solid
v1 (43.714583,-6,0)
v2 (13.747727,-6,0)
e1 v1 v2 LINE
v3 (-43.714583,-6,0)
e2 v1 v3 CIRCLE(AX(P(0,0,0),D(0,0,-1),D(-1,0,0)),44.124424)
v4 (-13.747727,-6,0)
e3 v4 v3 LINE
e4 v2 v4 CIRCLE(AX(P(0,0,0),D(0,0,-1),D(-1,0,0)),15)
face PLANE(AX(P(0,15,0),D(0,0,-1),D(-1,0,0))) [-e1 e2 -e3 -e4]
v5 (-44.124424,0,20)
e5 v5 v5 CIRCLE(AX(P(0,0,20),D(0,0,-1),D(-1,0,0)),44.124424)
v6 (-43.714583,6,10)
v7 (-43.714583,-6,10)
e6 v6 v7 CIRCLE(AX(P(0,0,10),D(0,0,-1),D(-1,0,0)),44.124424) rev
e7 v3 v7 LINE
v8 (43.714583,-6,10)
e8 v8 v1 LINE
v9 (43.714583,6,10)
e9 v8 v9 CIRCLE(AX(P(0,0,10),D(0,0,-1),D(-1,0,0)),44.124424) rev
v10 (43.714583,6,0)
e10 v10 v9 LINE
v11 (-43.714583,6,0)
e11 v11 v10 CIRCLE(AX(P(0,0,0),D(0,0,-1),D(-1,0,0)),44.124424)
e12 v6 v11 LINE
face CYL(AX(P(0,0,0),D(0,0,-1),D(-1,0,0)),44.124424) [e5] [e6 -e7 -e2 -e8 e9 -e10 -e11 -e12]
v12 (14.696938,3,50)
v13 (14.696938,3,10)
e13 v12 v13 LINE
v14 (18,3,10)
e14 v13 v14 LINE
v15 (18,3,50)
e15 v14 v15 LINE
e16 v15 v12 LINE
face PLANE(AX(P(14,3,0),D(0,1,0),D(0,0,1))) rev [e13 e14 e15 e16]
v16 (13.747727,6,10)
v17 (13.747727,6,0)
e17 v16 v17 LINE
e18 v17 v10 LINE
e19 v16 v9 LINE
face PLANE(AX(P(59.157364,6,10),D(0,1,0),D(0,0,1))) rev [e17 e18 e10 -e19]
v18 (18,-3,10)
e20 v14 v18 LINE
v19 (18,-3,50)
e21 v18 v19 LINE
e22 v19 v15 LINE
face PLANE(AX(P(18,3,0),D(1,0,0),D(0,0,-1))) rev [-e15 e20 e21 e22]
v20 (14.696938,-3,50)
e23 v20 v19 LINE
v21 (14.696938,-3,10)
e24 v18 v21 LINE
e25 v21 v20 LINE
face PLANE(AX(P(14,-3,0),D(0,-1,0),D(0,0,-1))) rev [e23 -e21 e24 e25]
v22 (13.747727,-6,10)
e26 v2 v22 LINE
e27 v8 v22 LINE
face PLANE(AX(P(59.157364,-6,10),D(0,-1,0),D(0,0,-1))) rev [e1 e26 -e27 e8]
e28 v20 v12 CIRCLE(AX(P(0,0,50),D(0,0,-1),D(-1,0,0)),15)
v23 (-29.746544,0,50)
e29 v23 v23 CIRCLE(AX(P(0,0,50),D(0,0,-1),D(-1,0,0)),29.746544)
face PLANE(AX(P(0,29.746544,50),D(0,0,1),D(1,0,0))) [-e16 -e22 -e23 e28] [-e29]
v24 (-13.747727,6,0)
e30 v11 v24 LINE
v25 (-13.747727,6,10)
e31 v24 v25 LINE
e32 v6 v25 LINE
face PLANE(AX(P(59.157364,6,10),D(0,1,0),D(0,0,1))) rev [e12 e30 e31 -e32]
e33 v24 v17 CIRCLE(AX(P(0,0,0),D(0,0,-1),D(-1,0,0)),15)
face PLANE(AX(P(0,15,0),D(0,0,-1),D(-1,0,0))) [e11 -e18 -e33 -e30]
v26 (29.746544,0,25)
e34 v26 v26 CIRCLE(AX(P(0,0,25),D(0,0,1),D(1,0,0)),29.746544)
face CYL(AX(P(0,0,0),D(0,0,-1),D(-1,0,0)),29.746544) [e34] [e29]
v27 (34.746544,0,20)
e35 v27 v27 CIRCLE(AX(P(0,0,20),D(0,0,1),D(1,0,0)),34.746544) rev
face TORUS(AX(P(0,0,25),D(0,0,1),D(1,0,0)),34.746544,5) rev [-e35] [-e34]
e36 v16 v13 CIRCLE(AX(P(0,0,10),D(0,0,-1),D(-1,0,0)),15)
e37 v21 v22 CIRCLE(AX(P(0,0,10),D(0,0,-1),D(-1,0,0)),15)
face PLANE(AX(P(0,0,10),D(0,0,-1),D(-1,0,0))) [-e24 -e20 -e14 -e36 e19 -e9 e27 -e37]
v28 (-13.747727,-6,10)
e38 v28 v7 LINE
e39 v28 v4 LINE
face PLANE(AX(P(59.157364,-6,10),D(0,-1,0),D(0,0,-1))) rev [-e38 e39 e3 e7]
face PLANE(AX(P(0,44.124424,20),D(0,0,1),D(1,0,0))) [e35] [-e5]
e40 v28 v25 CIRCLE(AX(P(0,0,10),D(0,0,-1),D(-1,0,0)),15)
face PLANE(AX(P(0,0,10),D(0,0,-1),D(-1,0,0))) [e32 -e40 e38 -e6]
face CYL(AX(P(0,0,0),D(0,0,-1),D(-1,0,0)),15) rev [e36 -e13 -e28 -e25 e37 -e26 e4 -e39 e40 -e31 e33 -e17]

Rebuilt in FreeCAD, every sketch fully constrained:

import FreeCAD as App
import Part
import Sketcher
from FreeCAD import Vector


def edges_at(feature, points):
    """Names of the edges that pass closest to the given points."""
    edges = feature.Shape.Edges
    near = lambda p: min(range(len(edges)), key=lambda i: edges[i].distToShape(Part.Vertex(*p))[0])
    return sorted({f"Edge{near(p) + 1}" for p in points})

doc = App.newDocument("Part")
body = doc.addObject("PartDesign::Body", "Body")

# Sketch on YZ plane
sketch1 = body.newObject("Sketcher::SketchObject", "Sketch")
sketch1.AttachmentSupport = (doc.getObject("YZ_Plane"), [""])
sketch1.MapMode = "FlatFace"
sketch1.addGeometry([
    Part.LineSegment(Vector(15, 0, 0), Vector(44.124424, 0, 0)),  # 0
    Part.LineSegment(Vector(44.124424, 0, 0), Vector(44.124424, 20, 0)),  # 1
    Part.LineSegment(Vector(44.124424, 20, 0), Vector(29.746544, 20, 0)),  # 2
    Part.LineSegment(Vector(29.746544, 20, 0), Vector(29.746544, 50, 0)),  # 3
    Part.LineSegment(Vector(29.746544, 50, 0), Vector(15, 50, 0)),  # 4
    Part.LineSegment(Vector(15, 50, 0), Vector(15, 0, 0)),  # 5
], False)
sketch1.addConstraint([
    Sketcher.Constraint("Coincident", 0, 2, 1, 1),
    Sketcher.Constraint("Coincident", 1, 2, 2, 1),
    Sketcher.Constraint("Coincident", 2, 2, 3, 1),
    Sketcher.Constraint("Coincident", 3, 2, 4, 1),
    Sketcher.Constraint("Coincident", 4, 2, 5, 1),
    Sketcher.Constraint("Coincident", 5, 2, 0, 1),
    Sketcher.Constraint("Horizontal", 0),
    Sketcher.Constraint("Vertical", 1),
    Sketcher.Constraint("Horizontal", 2),
    Sketcher.Constraint("Vertical", 3),
    Sketcher.Constraint("Horizontal", 4),
    Sketcher.Constraint("Vertical", 5),
    Sketcher.Constraint("PointOnObject", 0, 2, -1),
    Sketcher.Constraint("DistanceY", 1, 1, 1, 2, 20.0),
    Sketcher.Constraint("DistanceY", 3, 1, 3, 2, 30.0),
    Sketcher.Constraint("DistanceX", -1, 1, 4, 2, 15.0),
    Sketcher.Constraint("DistanceX", 2, 2, 2, 1, 14.37788),
    Sketcher.Constraint("DistanceX", 0, 1, 0, 2, 29.124424),
])
revolution = body.newObject("PartDesign::Revolution", "Revolution")
revolution.Profile = sketch1
revolution.ReferenceAxis = (sketch1, ["V_Axis"])
revolution.Angle = 360

# Sketch on XY plane
sketch2 = body.newObject("Sketcher::SketchObject", "Sketch001")
sketch2.AttachmentSupport = (doc.getObject("XY_Plane"), [""])
sketch2.MapMode = "FlatFace"
sketch2.addGeometry([
    Part.LineSegment(Vector(59.157364, 6, 0), Vector(59.157364, -6, 0)),
    Part.LineSegment(Vector(59.157364, -6, 0), Vector(-59.157364, -6, 0)),
    Part.LineSegment(Vector(-59.157364, -6, 0), Vector(-59.157364, 6, 0)),
    Part.LineSegment(Vector(-59.157364, 6, 0), Vector(59.157364, 6, 0)),
], False)
sketch2.addConstraint([
    Sketcher.Constraint("Coincident", 0, 2, 1, 1),
    Sketcher.Constraint("Coincident", 1, 2, 2, 1),
    Sketcher.Constraint("Coincident", 2, 2, 3, 1),
    Sketcher.Constraint("Coincident", 3, 2, 0, 1),
    Sketcher.Constraint("Vertical", 0),
    Sketcher.Constraint("Horizontal", 1),
    Sketcher.Constraint("Vertical", 2),
    Sketcher.Constraint("Horizontal", 3),
    Sketcher.Constraint("Symmetric", 0, 2, 2, 2, -1, 1),
    Sketcher.Constraint("DistanceY", 0, 2, 0, 1, 12.0),
    Sketcher.Constraint("DistanceX", 1, 2, 1, 1, 118.314728),
])
pocket1 = body.newObject("PartDesign::Pocket", "Pocket")
pocket1.Profile = sketch2
pocket1.Length = 10
pocket1.Reversed = True

# Sketch on XY plane
sketch3 = body.newObject("Sketcher::SketchObject", "Sketch002")
sketch3.AttachmentSupport = (doc.getObject("XY_Plane"), [""])
sketch3.MapMode = "FlatFace"
sketch3.AttachmentOffset = App.Placement(Vector(0, 0, 50), App.Rotation())
sketch3.addGeometry([
    Part.LineSegment(Vector(14, 3, 0), Vector(14, -3, 0)),
    Part.LineSegment(Vector(14, -3, 0), Vector(18, -3, 0)),
    Part.LineSegment(Vector(18, -3, 0), Vector(18, 3, 0)),
    Part.LineSegment(Vector(18, 3, 0), Vector(14, 3, 0)),
], False)
sketch3.addConstraint([
    Sketcher.Constraint("Coincident", 0, 2, 1, 1),
    Sketcher.Constraint("Coincident", 1, 2, 2, 1),
    Sketcher.Constraint("Coincident", 2, 2, 3, 1),
    Sketcher.Constraint("Coincident", 3, 2, 0, 1),
    Sketcher.Constraint("Vertical", 0),
    Sketcher.Constraint("Horizontal", 1),
    Sketcher.Constraint("Vertical", 2),
    Sketcher.Constraint("Horizontal", 3),
    Sketcher.Constraint("DistanceX", 1, 1, 1, 2, 4.0),
    Sketcher.Constraint("DistanceY", 0, 2, 0, 1, 6.0),
    Sketcher.Constraint("DistanceX", -1, 1, 0, 2, 14.0),
    Sketcher.Constraint("DistanceY", 0, 2, -1, 1, 3.0),
])
pocket2 = body.newObject("PartDesign::Pocket", "Pocket001")
pocket2.Profile = sketch3
pocket2.Type = "ThroughAll"
doc.recompute()

fillet = body.newObject("PartDesign::Fillet", "Fillet")
fillet.Base = (pocket2, edges_at(pocket2, [(29.747, 0, 20)]))
fillet.Radius = 5

doc.recompute()
